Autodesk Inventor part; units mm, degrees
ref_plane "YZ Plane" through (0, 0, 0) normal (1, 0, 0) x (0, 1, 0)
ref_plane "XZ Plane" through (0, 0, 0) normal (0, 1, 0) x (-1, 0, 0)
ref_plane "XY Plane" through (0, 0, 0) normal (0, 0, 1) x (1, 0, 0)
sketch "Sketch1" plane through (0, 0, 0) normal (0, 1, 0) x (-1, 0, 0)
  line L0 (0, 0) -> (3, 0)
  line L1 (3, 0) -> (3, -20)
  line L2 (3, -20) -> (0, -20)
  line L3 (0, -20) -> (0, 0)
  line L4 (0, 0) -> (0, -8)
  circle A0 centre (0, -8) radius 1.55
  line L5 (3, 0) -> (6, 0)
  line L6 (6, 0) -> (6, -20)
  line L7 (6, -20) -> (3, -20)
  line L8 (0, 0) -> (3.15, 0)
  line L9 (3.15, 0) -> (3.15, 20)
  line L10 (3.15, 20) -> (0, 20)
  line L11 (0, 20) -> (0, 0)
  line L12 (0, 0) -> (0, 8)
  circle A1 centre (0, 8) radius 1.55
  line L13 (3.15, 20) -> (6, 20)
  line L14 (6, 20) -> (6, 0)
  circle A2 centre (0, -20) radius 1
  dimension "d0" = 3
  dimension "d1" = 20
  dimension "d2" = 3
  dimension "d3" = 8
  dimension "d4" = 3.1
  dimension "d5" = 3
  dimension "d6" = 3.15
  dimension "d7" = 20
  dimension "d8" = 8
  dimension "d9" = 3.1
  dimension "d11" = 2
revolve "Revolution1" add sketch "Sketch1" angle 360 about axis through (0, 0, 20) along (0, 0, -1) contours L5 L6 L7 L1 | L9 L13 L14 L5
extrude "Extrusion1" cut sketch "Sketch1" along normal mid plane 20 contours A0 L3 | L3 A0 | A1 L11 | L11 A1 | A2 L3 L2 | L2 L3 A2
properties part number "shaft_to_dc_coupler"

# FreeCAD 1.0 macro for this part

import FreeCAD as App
import Part
import Sketcher

V = App.Vector
Q = App.Units.Quantity

doc = App.newDocument("Part")
body = doc.addObject("PartDesign::Body", "Body")

# Sketch on XZ plane
sketch1 = body.newObject("Sketcher::SketchObject", "Sketch")
sketch1.AttachmentSupport = (doc.getObject("XZ_Plane"), [""])
sketch1.MapMode = "FlatFace"
sketch1.addGeometry([
    Part.LineSegment(V(-3.15, 0, 0), V(-3, 0, 0)),  # 0
    Part.LineSegment(V(-3, 0, 0), V(-3, -20, 0)),  # 1
    Part.LineSegment(V(-3, -20, 0), V(-6, -20, 0)),  # 2
    Part.LineSegment(V(-6, -20, 0), V(-6, 20, 0)),  # 3
    Part.LineSegment(V(-6, 20, 0), V(-3.15, 20, 0)),  # 4
    Part.LineSegment(V(-3.15, 20, 0), V(-3.15, 0, 0)),  # 5
], False)
sketch1.addConstraint([
    Sketcher.Constraint("Coincident", 0, 2, 1, 1),
    Sketcher.Constraint("Coincident", 1, 2, 2, 1),
    Sketcher.Constraint("Coincident", 2, 2, 3, 1),
    Sketcher.Constraint("Coincident", 3, 2, 4, 1),
    Sketcher.Constraint("Coincident", 4, 2, 5, 1),
    Sketcher.Constraint("Coincident", 5, 2, 0, 1),
    Sketcher.Constraint("Horizontal", 0),
    Sketcher.Constraint("Vertical", 1),
    Sketcher.Constraint("Horizontal", 2),
    Sketcher.Constraint("Vertical", 3),
    Sketcher.Constraint("Horizontal", 4),
    Sketcher.Constraint("Vertical", 5),
    Sketcher.Constraint("PointOnObject", 0, 2, -1),
    Sketcher.Constraint("Equal", 1, 5),
    Sketcher.Constraint("DistanceX", 2, 2, 2, 1, Q("3 mm")),
    Sketcher.Constraint("DistanceY", 1, 2, 1, 1, Q("20 mm")),
    Sketcher.Constraint("DistanceX", 0, 2, -1, 1, Q("3 mm")),
    Sketcher.Constraint("DistanceX", 4, 2, -1, 1, Q("3.15 mm")),
])
revolution = body.newObject("PartDesign::Revolution", "Revolution")
revolution.Profile = sketch1
revolution.ReferenceAxis = (sketch1, ["V_Axis"])
revolution.Angle = 360

# Sketch on XZ plane
sketch2 = body.newObject("Sketcher::SketchObject", "Sketch001")
sketch2.AttachmentSupport = (doc.getObject("XZ_Plane"), [""])
sketch2.MapMode = "FlatFace"
sketch2.addGeometry([
    Part.Circle(V(0, -8, 0), V(0, 0, 1), 1.55),
    Part.Circle(V(0, 8, 0), V(0, 0, 1), 1.55),
    Part.Circle(V(0, -20, 0), V(0, 0, 1), 1),
], False)
sketch2.addConstraint([
    Sketcher.Constraint("Equal", 0, 1),
    Sketcher.Constraint("Symmetric", 0, 3, 1, 3, -1, 1),
    Sketcher.Constraint("PointOnObject", 0, 3, -2),
    Sketcher.Constraint("PointOnObject", 2, 3, -2),
    Sketcher.Constraint("Diameter", 2, Q("2 mm")),
    Sketcher.Constraint("Diameter", 0, Q("3.1 mm")),
    Sketcher.Constraint("DistanceY", 0, 3, -1, 1, Q("8 mm")),
    Sketcher.Constraint("DistanceY", 2, 3, -1, 1, Q("20 mm")),
])
pocket1 = body.newObject("PartDesign::Pocket", "Pocket")
pocket1.Profile = sketch2
pocket1.Length = 20
pocket1.Midplane = True

doc.recompute()
